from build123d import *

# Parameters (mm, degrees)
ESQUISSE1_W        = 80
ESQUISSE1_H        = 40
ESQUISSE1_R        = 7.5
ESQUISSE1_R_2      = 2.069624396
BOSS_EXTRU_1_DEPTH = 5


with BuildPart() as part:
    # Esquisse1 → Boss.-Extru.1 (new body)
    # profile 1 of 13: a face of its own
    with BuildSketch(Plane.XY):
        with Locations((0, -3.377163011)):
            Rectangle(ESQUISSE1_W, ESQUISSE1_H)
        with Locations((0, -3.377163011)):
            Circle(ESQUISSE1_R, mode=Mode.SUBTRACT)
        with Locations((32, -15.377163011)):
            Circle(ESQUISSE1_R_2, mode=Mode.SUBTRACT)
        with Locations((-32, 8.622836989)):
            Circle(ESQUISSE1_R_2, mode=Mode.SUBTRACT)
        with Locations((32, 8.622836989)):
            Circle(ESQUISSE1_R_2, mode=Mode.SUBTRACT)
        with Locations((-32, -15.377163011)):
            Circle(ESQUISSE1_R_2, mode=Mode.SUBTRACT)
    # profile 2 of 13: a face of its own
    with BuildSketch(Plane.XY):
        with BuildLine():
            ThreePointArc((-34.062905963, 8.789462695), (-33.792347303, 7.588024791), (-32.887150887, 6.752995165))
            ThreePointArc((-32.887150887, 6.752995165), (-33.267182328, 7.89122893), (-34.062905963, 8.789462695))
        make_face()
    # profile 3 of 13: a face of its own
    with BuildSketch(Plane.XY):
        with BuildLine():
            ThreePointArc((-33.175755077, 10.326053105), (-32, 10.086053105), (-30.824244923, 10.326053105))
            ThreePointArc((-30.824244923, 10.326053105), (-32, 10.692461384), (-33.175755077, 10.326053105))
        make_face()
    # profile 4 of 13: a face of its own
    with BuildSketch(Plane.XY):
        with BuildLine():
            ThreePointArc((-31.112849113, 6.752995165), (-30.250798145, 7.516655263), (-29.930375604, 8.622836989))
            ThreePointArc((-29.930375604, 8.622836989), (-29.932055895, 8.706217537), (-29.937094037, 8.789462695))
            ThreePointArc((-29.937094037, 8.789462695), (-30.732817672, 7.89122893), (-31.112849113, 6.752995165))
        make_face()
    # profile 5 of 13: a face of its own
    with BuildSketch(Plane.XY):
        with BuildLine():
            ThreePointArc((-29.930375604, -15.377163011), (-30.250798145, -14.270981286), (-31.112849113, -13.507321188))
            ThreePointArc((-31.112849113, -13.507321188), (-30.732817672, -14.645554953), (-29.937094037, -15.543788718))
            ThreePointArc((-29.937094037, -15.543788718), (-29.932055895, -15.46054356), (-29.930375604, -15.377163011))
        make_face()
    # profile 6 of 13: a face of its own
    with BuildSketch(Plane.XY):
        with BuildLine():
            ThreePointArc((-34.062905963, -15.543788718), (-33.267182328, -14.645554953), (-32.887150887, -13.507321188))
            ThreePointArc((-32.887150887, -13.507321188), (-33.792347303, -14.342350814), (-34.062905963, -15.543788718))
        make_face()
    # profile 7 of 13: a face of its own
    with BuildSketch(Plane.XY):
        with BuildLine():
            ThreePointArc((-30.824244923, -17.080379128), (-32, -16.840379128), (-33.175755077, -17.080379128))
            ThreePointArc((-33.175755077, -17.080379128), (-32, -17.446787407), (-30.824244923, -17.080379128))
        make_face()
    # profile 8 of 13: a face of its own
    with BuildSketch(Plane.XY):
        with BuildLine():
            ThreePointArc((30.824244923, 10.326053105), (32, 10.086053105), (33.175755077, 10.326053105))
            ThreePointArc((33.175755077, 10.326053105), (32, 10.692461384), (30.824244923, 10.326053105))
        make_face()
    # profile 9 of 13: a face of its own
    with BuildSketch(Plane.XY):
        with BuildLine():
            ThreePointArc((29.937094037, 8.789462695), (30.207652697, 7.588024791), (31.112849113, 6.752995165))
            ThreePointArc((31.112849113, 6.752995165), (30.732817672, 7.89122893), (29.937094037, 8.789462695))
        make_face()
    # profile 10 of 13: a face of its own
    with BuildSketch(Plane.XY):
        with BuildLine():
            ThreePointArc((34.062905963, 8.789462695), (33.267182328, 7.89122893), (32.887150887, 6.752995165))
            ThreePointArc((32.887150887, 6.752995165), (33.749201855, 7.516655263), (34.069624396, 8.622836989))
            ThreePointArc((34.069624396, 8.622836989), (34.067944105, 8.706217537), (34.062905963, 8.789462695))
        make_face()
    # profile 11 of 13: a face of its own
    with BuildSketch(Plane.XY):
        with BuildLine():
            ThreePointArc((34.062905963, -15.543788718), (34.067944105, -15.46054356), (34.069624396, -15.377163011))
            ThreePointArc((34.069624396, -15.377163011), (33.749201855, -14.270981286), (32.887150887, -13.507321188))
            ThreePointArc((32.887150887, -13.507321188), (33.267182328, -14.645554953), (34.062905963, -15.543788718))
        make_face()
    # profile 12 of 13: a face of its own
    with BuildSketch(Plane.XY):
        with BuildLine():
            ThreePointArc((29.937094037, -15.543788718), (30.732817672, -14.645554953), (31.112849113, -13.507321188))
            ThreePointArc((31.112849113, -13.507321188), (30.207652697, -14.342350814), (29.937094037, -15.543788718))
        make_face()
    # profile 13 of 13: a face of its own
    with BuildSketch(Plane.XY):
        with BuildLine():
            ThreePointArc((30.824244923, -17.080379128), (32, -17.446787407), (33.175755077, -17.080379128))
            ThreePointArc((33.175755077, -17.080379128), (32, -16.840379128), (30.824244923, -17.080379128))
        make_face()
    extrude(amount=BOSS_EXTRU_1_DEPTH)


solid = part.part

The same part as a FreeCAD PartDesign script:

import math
import FreeCAD as App
import Part
import Sketcher
from FreeCAD import Vector
Q = App.Units.Quantity

doc = App.newDocument("Part")
params = doc.addObject("Spreadsheet::Sheet", "Params")
for row, (alias, value) in enumerate([
    ("sketch1_diameter", "15 mm"),
    ("sketch1_radius", "3 mm"),
    ("sketch1_width", "80 mm"),
    ("sketch1_height", "40 mm"),
    ("pad1_length", "5 mm"),
], start=1):
    params.set(f"A{row}", alias)
    params.set(f"B{row}", "=" + value)
    params.setAlias(f"B{row}", alias)

body = doc.addObject("PartDesign::Body", "Body")

# Sketch on XY plane
sketch1 = doc.addObject("Sketcher::SketchObject", "Sketch")
body.addObject(sketch1)
sketch1.AttachmentSupport = (doc.XY_Plane, [""])
sketch1.MapMode = "FlatFace"
sketch1.addGeometry(Part.LineSegment(Vector(-40, 16.6, 0), Vector(-40, -23.4, 0)), False)
sketch1.addGeometry(Part.LineSegment(Vector(-40, -23.4, 0), Vector(40, -23.4, 0)), False)
sketch1.addGeometry(Part.LineSegment(Vector(40, -23.4, 0), Vector(40, 16.6, 0)), False)
sketch1.addGeometry(Part.LineSegment(Vector(40, 16.6, 0), Vector(-40, 16.6, 0)), False)
sketch1.addGeometry(Part.ArcOfCircle(Part.Circle(Vector(-32, -15.4, 0), Vector(0, 0, 1), 2.1), math.radians(65), math.radians(115)), False)
sketch1.addGeometry(Part.ArcOfCircle(Part.Circle(Vector(-28.1, -13.1, 0), Vector(0, 0, 1), 3), math.radians(-173), math.radians(-127)), False)
sketch1.addGeometry(Part.ArcOfCircle(Part.Circle(Vector(-32, -15.4, 0), Vector(0, 0, 1), 2.1), math.radians(-55), math.radians(-5)), False)
sketch1.addGeometry(Part.ArcOfCircle(Part.Circle(Vector(-32, -19.8, 0), Vector(0, 0, 1), 3), math.radians(67), math.radians(113)), False)
sketch1.addGeometry(Part.ArcOfCircle(Part.Circle(Vector(-32, -15.4, 0), Vector(0, 0, 1), 2.1), math.radians(-175), math.radians(-125)), False)
sketch1.addGeometry(Part.ArcOfCircle(Part.Circle(Vector(-35.9, -13.1, 0), Vector(0, 0, 1), 3), math.radians(-53), math.radians(-7)), False)
sketch1.addGeometry(Part.ArcOfCircle(Part.Circle(Vector(32, -15.4, 0), Vector(0, 0, 1), 2.1), math.radians(65), math.radians(115)), False)
sketch1.addGeometry(Part.ArcOfCircle(Part.Circle(Vector(35.9, -13.1, 0), Vector(0, 0, 1), 3), math.radians(-173), math.radians(-127)), False)
sketch1.addGeometry(Part.ArcOfCircle(Part.Circle(Vector(32, -15.4, 0), Vector(0, 0, 1), 2.1), math.radians(-55), math.radians(-5)), False)
sketch1.addGeometry(Part.ArcOfCircle(Part.Circle(Vector(32, -19.8, 0), Vector(0, 0, 1), 3), math.radians(67), math.radians(113)), False)
sketch1.addGeometry(Part.ArcOfCircle(Part.Circle(Vector(32, -15.4, 0), Vector(0, 0, 1), 2.1), math.radians(-175), math.radians(-125)), False)
sketch1.addGeometry(Part.ArcOfCircle(Part.Circle(Vector(28.1, -13.1, 0), Vector(0, 0, 1), 3), math.radians(-53), math.radians(-7)), False)
sketch1.addGeometry(Part.Circle(Vector(0, -3.4, 0), Vector(0, 0, 1), 7.5), False)
sketch1.addGeometry(Part.ArcOfCircle(Part.Circle(Vector(-32, 8.6, 0), Vector(0, 0, 1), 2.1), math.radians(5), math.radians(55)), False)
sketch1.addGeometry(Part.ArcOfCircle(Part.Circle(Vector(-28.1, 6.4, 0), Vector(0, 0, 1), 3), math.radians(127), math.radians(173)), False)
sketch1.addGeometry(Part.ArcOfCircle(Part.Circle(Vector(-32, 8.6, 0), Vector(0, 0, 1), 2.1), math.radians(-115), math.radians(-65)), False)
sketch1.addGeometry(Part.ArcOfCircle(Part.Circle(Vector(-35.9, 6.4, 0), Vector(0, 0, 1), 3), math.radians(7), math.radians(53)), False)
sketch1.addGeometry(Part.ArcOfCircle(Part.Circle(Vector(-32, 8.6, 0), Vector(0, 0, 1), 2.1), math.radians(125), math.radians(175)), False)
sketch1.addGeometry(Part.ArcOfCircle(Part.Circle(Vector(-32, 13.1, 0), Vector(0, 0, 1), 3), math.radians(-113), math.radians(-67)), False)
sketch1.addGeometry(Part.ArcOfCircle(Part.Circle(Vector(32, 8.6, 0), Vector(0, 0, 1), 2.1), math.radians(5), math.radians(55)), False)
sketch1.addGeometry(Part.ArcOfCircle(Part.Circle(Vector(35.9, 6.4, 0), Vector(0, 0, 1), 3), math.radians(127), math.radians(173)), False)
sketch1.addGeometry(Part.ArcOfCircle(Part.Circle(Vector(32, 8.6, 0), Vector(0, 0, 1), 2.1), math.radians(-115), math.radians(-65)), False)
sketch1.addGeometry(Part.ArcOfCircle(Part.Circle(Vector(28.1, 6.4, 0), Vector(0, 0, 1), 3), math.radians(7), math.radians(53)), False)
sketch1.addGeometry(Part.ArcOfCircle(Part.Circle(Vector(32, 8.6, 0), Vector(0, 0, 1), 2.1), math.radians(125), math.radians(175)), False)
sketch1.addGeometry(Part.ArcOfCircle(Part.Circle(Vector(32, 13.1, 0), Vector(0, 0, 1), 3), math.radians(-113), math.radians(-67)), False)
sketch1.addConstraint(Sketcher.Constraint("Coincident", 0, 2, 1, 1))
sketch1.addConstraint(Sketcher.Constraint("Coincident", 1, 2, 2, 1))
sketch1.addConstraint(Sketcher.Constraint("Coincident", 2, 2, 3, 1))
sketch1.addConstraint(Sketcher.Constraint("Coincident", 3, 2, 0, 1))
sketch1.addConstraint(Sketcher.Constraint("Coincident", 4, 1, 5, 1))
sketch1.addConstraint(Sketcher.Constraint("Coincident", 5, 2, 6, 2))
sketch1.addConstraint(Sketcher.Constraint("Coincident", 6, 1, 7, 1))
sketch1.addConstraint(Sketcher.Constraint("Coincident", 7, 2, 8, 2))
sketch1.addConstraint(Sketcher.Constraint("Coincident", 8, 1, 9, 1))
sketch1.addConstraint(Sketcher.Constraint("Coincident", 9, 2, 4, 2))
sketch1.addConstraint(Sketcher.Constraint("Coincident", 10, 1, 11, 1))
sketch1.addConstraint(Sketcher.Constraint("Coincident", 11, 2, 12, 2))
sketch1.addConstraint(Sketcher.Constraint("Coincident", 12, 1, 13, 1))
sketch1.addConstraint(Sketcher.Constraint("Coincident", 13, 2, 14, 2))
sketch1.addConstraint(Sketcher.Constraint("Coincident", 14, 1, 15, 1))
sketch1.addConstraint(Sketcher.Constraint("Coincident", 15, 2, 10, 2))
sketch1.addConstraint(Sketcher.Constraint("Coincident", 17, 1, 18, 1))
sketch1.addConstraint(Sketcher.Constraint("Coincident", 18, 2, 19, 2))
sketch1.addConstraint(Sketcher.Constraint("Coincident", 19, 1, 20, 1))
sketch1.addConstraint(Sketcher.Constraint("Coincident", 20, 2, 21, 2))
sketch1.addConstraint(Sketcher.Constraint("Coincident", 21, 1, 22, 1))
sketch1.addConstraint(Sketcher.Constraint("Coincident", 22, 2, 17, 2))
sketch1.addConstraint(Sketcher.Constraint("Coincident", 23, 1, 24, 1))
sketch1.addConstraint(Sketcher.Constraint("Coincident", 24, 2, 25, 2))
sketch1.addConstraint(Sketcher.Constraint("Coincident", 25, 1, 26, 1))
sketch1.addConstraint(Sketcher.Constraint("Coincident", 26, 2, 27, 2))
sketch1.addConstraint(Sketcher.Constraint("Coincident", 27, 1, 28, 1))
sketch1.addConstraint(Sketcher.Constraint("Coincident", 28, 2, 23, 2))
sketch1.addConstraint(Sketcher.Constraint("Vertical", 0))
sketch1.addConstraint(Sketcher.Constraint("Horizontal", 1))
sketch1.addConstraint(Sketcher.Constraint("Vertical", 2))
sketch1.addConstraint(Sketcher.Constraint("Horizontal", 3))
sketch1.addConstraint(Sketcher.Constraint("Coincident", 6, 3, 4, 3))
sketch1.addConstraint(Sketcher.Constraint("Coincident", 8, 3, 4, 3))
sketch1.addConstraint(Sketcher.Constraint("Coincident", 12, 3, 10, 3))
sketch1.addConstraint(Sketcher.Constraint("Coincident", 14, 3, 10, 3))
sketch1.addConstraint(Sketcher.Constraint("Coincident", 19, 3, 17, 3))
sketch1.addConstraint(Sketcher.Constraint("Coincident", 21, 3, 17, 3))
sketch1.addConstraint(Sketcher.Constraint("Coincident", 25, 3, 23, 3))
sketch1.addConstraint(Sketcher.Constraint("Coincident", 27, 3, 23, 3))
sketch1.addConstraint(Sketcher.Constraint("Equal", 4, 6))
sketch1.addConstraint(Sketcher.Constraint("Equal", 5, 7))
sketch1.addConstraint(Sketcher.Constraint("Equal", 6, 8))
sketch1.addConstraint(Sketcher.Constraint("Equal", 7, 9))
sketch1.addConstraint(Sketcher.Constraint("Equal", 8, 10))
sketch1.addConstraint(Sketcher.Constraint("Equal", 9, 11))
sketch1.addConstraint(Sketcher.Constraint("Equal", 10, 12))
sketch1.addConstraint(Sketcher.Constraint("Equal", 11, 13))
sketch1.addConstraint(Sketcher.Constraint("Equal", 12, 14))
sketch1.addConstraint(Sketcher.Constraint("Equal", 13, 15))
sketch1.addConstraint(Sketcher.Constraint("Equal", 14, 17))
sketch1.addConstraint(Sketcher.Constraint("Equal", 15, 18))
sketch1.addConstraint(Sketcher.Constraint("Equal", 17, 19))
sketch1.addConstraint(Sketcher.Constraint("Equal", 18, 20))
sketch1.addConstraint(Sketcher.Constraint("Equal", 19, 21))
sketch1.addConstraint(Sketcher.Constraint("Equal", 20, 22))
sketch1.addConstraint(Sketcher.Constraint("Equal", 21, 23))
sketch1.addConstraint(Sketcher.Constraint("Equal", 22, 24))
sketch1.addConstraint(Sketcher.Constraint("Equal", 23, 25))
sketch1.addConstraint(Sketcher.Constraint("Equal", 24, 26))
sketch1.addConstraint(Sketcher.Constraint("Equal", 25, 27))
sketch1.addConstraint(Sketcher.Constraint("Equal", 26, 28))
sketch1.addConstraint(Sketcher.Constraint("Symmetric", 4, 3, 10, 3, -2))
sketch1.addConstraint(Sketcher.Constraint("Symmetric", 9, 3, 11, 3, -2))
sketch1.addConstraint(Sketcher.Constraint("Symmetric", 7, 3, 13, 3, -2))
sketch1.addConstraint(Sketcher.Constraint("Symmetric", 5, 3, 15, 3, -2))
sketch1.addConstraint(Sketcher.Constraint("Symmetric", 17, 3, 23, 3, -2))
sketch1.addConstraint(Sketcher.Constraint("Symmetric", 20, 3, 24, 3, -2))
sketch1.addConstraint(Sketcher.Constraint("Symmetric", 18, 3, 26, 3, -2))
sketch1.addConstraint(Sketcher.Constraint("Symmetric", 22, 3, 28, 3, -2))
sketch1.addConstraint(Sketcher.Constraint("PointOnObject", 16, 3, -2))
sketch1.addConstraint(Sketcher.Constraint("Horizontal", 5, 3, 9, 3))
sketch1.addConstraint(Sketcher.Constraint("Horizontal", 18, 3, 20, 3))
sketch1.addConstraint(Sketcher.Constraint("Horizontal", 6, 1, 7, 2))
sketch1.addConstraint(Sketcher.Constraint("Horizontal", 5, 2, 8, 1))
sketch1.addConstraint(Sketcher.Constraint("Horizontal", 18, 2, 19, 1))
sketch1.addConstraint(Sketcher.Constraint("Horizontal", 21, 1, 22, 2))
sketch1.addConstraint(Sketcher.Constraint("Vertical", 8, 3, 17, 3))
sketch1.addConstraint(Sketcher.Constraint("Vertical", 5, 3, 18, 3))
sketch1.addConstraint(Sketcher.Constraint("Vertical", 5, 2, 17, 1))
sketch1.addConstraint(Sketcher.Constraint("Vertical", 7, 2, 21, 1))
sketch1.addConstraint(Sketcher.Constraint("Diameter", 16, Q("15 mm")))
sketch1.addConstraint(Sketcher.Constraint("Radius", 5, Q("3 mm")))
sketch1.addConstraint(Sketcher.Constraint("DistanceX", 1, 1, 1, 2, Q("80 mm")))
sketch1.addConstraint(Sketcher.Constraint("DistanceY", 0, 2, 0, 1, Q("40 mm")))
sketch1.addConstraint(Sketcher.Constraint("DistanceX", 4, 3, -1, 1, Q("32 mm")))
sketch1.addConstraint(Sketcher.Constraint("DistanceX", 0, 2, -1, 1, Q("40 mm")))
sketch1.addConstraint(Sketcher.Constraint("DistanceY", 4, 3, 16, 3, Q("12 mm")))
sketch1.addConstraint(Sketcher.Constraint("DistanceY", 4, 3, 17, 3, Q("24 mm")))
sketch1.addConstraint(Sketcher.Constraint("DistanceY", 0, 2, 4, 3, Q("8 mm")))
sketch1.addConstraint(Sketcher.Constraint("DistanceY", 7, 3, 6, 1, Q("2.76 mm")))
sketch1.addConstraint(Sketcher.Constraint("Radius", 4, Q("2.069624 mm")))
sketch1.addConstraint(Sketcher.Constraint("DistanceX", 9, 2, 4, 1, Q("1.774302 mm")))
sketch1.addConstraint(Sketcher.Constraint("DistanceX", 5, 3, -1, 1, Q("28.134741 mm")))
sketch1.addConstraint(Sketcher.Constraint("DistanceY", 7, 3, -1, 1, Q("19.840379 mm")))
sketch1.setExpression("Constraints[81]", "Params.sketch1_diameter")
sketch1.setExpression("Constraints[82]", "Params.sketch1_radius")
sketch1.setExpression("Constraints[83]", "Params.sketch1_width")
sketch1.setExpression("Constraints[84]", "Params.sketch1_height")
pad1 = doc.addObject("PartDesign::Pad", "Pad")
body.addObject(pad1)
pad1.Profile = sketch1
pad1.setExpression("Length", "Params.pad1_length")

doc.recompute()
